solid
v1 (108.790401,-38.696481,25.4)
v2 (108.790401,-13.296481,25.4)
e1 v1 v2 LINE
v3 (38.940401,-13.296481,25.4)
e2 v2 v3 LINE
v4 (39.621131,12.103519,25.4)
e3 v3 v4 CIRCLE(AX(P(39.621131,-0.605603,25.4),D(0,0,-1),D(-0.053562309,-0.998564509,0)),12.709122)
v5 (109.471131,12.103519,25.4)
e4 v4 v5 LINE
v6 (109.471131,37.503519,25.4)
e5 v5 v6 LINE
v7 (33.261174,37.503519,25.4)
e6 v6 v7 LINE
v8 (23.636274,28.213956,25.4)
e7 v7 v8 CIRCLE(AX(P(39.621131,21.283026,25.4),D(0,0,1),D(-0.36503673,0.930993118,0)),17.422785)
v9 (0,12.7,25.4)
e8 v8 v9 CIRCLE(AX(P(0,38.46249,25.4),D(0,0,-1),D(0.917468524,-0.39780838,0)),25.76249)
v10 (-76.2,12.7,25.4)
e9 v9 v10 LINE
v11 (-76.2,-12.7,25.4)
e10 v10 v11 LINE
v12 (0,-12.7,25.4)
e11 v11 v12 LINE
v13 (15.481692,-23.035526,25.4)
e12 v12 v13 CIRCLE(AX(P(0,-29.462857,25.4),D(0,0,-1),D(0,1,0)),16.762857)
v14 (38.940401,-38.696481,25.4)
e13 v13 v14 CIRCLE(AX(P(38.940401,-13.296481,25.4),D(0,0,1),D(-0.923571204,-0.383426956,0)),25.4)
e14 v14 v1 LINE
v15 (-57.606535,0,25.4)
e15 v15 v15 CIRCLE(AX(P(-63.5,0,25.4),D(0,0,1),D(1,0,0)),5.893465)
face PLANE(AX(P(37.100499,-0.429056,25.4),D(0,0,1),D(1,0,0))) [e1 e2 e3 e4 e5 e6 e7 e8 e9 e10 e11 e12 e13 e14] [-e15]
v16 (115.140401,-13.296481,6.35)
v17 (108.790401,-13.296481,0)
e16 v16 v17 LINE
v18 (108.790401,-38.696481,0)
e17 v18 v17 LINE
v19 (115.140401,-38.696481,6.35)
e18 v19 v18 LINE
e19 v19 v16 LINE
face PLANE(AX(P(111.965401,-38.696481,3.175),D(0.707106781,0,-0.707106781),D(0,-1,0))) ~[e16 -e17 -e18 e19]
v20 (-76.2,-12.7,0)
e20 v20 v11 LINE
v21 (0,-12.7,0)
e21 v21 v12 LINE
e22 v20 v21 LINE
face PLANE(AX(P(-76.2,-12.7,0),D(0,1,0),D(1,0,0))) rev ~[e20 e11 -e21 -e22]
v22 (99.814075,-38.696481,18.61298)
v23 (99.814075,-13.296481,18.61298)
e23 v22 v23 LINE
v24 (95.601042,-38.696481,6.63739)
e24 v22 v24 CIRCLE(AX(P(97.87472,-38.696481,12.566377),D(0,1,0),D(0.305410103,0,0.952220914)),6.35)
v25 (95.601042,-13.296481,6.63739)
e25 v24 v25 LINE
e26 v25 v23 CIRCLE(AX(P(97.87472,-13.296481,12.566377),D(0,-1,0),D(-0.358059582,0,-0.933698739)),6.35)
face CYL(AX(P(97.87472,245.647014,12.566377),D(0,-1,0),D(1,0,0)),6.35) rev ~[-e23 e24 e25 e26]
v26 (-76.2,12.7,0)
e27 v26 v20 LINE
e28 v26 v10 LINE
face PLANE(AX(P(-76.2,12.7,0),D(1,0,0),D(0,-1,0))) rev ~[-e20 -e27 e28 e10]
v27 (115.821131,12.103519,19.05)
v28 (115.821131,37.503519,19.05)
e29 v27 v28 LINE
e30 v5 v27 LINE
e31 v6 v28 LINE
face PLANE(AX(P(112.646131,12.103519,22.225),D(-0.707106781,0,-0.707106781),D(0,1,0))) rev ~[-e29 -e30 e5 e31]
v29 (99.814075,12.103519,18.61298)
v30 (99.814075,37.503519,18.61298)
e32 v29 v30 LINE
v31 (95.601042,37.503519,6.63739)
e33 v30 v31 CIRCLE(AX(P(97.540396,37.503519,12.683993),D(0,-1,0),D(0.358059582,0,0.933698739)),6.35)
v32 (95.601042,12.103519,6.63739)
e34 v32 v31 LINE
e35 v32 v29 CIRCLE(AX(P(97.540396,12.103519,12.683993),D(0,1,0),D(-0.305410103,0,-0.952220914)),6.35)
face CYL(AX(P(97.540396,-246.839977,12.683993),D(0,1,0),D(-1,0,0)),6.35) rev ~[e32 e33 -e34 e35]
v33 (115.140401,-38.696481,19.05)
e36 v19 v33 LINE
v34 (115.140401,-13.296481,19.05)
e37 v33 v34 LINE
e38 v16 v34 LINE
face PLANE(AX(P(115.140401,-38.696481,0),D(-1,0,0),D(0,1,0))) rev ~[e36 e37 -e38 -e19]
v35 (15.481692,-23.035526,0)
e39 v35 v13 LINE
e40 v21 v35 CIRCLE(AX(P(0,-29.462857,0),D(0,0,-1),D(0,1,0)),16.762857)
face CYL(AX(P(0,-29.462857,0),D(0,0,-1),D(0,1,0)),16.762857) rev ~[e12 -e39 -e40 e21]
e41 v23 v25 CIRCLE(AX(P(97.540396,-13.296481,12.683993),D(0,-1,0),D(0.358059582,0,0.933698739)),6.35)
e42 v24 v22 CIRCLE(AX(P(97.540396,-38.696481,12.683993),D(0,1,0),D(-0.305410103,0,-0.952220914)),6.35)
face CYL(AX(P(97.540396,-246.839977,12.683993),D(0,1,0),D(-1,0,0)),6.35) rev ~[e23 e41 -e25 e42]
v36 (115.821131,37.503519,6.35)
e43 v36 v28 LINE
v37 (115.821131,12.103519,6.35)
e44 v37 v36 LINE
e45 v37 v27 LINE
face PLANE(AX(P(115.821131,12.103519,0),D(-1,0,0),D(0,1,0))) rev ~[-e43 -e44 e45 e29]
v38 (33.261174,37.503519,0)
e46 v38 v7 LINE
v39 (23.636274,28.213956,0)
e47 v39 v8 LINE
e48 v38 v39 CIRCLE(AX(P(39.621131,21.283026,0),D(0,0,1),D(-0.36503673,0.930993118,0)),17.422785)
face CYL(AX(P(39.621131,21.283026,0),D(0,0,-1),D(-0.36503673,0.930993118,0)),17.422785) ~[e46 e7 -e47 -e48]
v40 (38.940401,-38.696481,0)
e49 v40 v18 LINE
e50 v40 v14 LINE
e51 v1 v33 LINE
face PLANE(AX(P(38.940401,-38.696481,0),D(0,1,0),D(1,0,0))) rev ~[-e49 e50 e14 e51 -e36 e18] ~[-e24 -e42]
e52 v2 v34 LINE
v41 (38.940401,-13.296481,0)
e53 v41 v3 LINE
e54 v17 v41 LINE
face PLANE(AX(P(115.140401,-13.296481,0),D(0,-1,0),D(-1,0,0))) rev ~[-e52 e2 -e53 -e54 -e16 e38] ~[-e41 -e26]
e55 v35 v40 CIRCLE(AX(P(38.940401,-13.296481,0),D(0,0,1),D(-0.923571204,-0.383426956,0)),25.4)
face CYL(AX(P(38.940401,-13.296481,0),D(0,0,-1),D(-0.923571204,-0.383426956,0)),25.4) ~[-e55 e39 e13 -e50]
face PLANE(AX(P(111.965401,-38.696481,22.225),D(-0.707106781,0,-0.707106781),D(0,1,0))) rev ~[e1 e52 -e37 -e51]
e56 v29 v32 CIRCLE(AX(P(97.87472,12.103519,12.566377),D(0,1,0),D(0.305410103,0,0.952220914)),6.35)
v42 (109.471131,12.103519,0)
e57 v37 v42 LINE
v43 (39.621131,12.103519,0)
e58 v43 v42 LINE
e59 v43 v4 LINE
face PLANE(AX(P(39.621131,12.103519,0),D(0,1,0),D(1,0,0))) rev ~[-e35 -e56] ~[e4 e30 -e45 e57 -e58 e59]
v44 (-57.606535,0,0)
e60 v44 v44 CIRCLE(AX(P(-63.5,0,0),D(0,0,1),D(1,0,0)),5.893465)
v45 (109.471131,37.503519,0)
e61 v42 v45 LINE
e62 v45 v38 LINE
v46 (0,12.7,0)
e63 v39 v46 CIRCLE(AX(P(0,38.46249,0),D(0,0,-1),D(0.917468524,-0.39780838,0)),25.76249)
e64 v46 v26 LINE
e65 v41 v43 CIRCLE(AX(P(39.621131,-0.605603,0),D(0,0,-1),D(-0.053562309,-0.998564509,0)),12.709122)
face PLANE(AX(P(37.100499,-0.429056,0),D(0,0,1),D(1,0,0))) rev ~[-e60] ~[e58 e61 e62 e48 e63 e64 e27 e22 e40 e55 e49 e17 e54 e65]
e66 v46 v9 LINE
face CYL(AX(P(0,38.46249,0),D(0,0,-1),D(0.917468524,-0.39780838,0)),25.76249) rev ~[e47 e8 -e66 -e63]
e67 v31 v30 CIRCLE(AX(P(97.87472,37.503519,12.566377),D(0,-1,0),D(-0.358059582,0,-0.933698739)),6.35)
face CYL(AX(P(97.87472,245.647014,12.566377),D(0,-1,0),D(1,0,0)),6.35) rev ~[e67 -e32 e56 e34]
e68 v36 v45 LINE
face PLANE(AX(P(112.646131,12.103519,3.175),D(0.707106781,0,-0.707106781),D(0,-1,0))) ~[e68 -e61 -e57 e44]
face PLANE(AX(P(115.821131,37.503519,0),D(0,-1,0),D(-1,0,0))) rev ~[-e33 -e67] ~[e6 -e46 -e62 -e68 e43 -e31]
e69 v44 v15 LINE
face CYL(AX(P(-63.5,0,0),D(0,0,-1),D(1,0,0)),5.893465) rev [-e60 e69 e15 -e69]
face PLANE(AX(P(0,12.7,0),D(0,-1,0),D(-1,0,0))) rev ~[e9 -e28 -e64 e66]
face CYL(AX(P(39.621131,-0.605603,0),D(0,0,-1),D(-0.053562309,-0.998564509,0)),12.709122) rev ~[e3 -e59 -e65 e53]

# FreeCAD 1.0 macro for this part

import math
import FreeCAD as App
import Part
import Sketcher
Q = App.Units.Quantity


def edges_at(feature, points):
    """Names of the edges that pass closest to the given points."""
    edges = feature.Shape.Edges
    near = lambda p: min(range(len(edges)), key=lambda i: edges[i].distToShape(Part.Vertex(*p))[0])
    return sorted({f"Edge{near(p) + 1}" for p in points})

doc = App.newDocument("Part")
body = doc.addObject("PartDesign::Body", "Body")

# Sketch on XY plane
sketch1 = body.newObject("Sketcher::SketchObject", "Sketch")
sketch1.AttachmentSupport = (doc.getObject("XY_Plane"), [""])
sketch1.MapMode = "FlatFace"
sketch1.addGeometry([
    Part.ArcOfCircle(Part.Circle(App.Vector(0, 38, 0), App.Vector(0, 0, 1), 26), math.radians(-90), math.radians(-23)),  # 0
    Part.LineSegment(App.Vector(0, 13, 0), App.Vector(-76, 13, 0)),  # 1
    Part.LineSegment(App.Vector(-76, 13, 0), App.Vector(-76, -13, 0)),  # 2
    Part.LineSegment(App.Vector(-76, -13, 0), App.Vector(0, -13, 0)),  # 3
    Part.ArcOfCircle(Part.Circle(App.Vector(0, -29, 0), App.Vector(0, 0, 1), 17), math.radians(23), math.radians(90)),  # 4
    Part.ArcOfCircle(Part.Circle(App.Vector(39, -13, 0), App.Vector(0, 0, 1), 25), math.radians(-157), math.radians(-90)),  # 5
    Part.LineSegment(App.Vector(39, -39, 0), App.Vector(115, -39, 0)),  # 6
    Part.LineSegment(App.Vector(115, -39, 0), App.Vector(115, -13, 0)),  # 7
    Part.LineSegment(App.Vector(115, -13, 0), App.Vector(39, -13, 0)),  # 8
    Part.ArcOfCircle(Part.Circle(App.Vector(40, -1, 0), App.Vector(0, 0, 1), 13), math.radians(90), math.radians(267)),  # 9
    Part.LineSegment(App.Vector(40, 12, 0), App.Vector(116, 12, 0)),  # 10
    Part.LineSegment(App.Vector(116, 12, 0), App.Vector(116, 38, 0)),  # 11
    Part.LineSegment(App.Vector(116, 38, 0), App.Vector(33, 38, 0)),  # 12
    Part.ArcOfCircle(Part.Circle(App.Vector(40, 21, 0), App.Vector(0, 0, 1), 17), math.radians(111), math.radians(157)),  # 13
    Part.Circle(App.Vector(-64, 0, 0), App.Vector(0, 0, 1), 6),  # 14
], False)
sketch1.addConstraint([
    Sketcher.Constraint("Tangent", 0, 1, 1, 1),
    Sketcher.Constraint("Coincident", 1, 2, 2, 1),
    Sketcher.Constraint("Coincident", 2, 2, 3, 1),
    Sketcher.Constraint("Tangent", 3, 2, 4, 2),
    Sketcher.Constraint("Tangent", 4, 1, 5, 1),
    Sketcher.Constraint("Tangent", 5, 2, 6, 1),
    Sketcher.Constraint("Coincident", 6, 2, 7, 1),
    Sketcher.Constraint("Coincident", 7, 2, 8, 1),
    Sketcher.Constraint("Coincident", 8, 2, 9, 2),
    Sketcher.Constraint("Tangent", 9, 1, 10, 1),
    Sketcher.Constraint("Coincident", 10, 2, 11, 1),
    Sketcher.Constraint("Coincident", 11, 2, 12, 1),
    Sketcher.Constraint("Coincident", 12, 2, 13, 1),
    Sketcher.Constraint("Tangent", 13, 2, 0, 2),
    Sketcher.Constraint("Horizontal", 1),
    Sketcher.Constraint("Vertical", 2),
    Sketcher.Constraint("Horizontal", 3),
    Sketcher.Constraint("Horizontal", 6),
    Sketcher.Constraint("Vertical", 7),
    Sketcher.Constraint("Horizontal", 8),
    Sketcher.Constraint("Horizontal", 10),
    Sketcher.Constraint("Vertical", 11),
    Sketcher.Constraint("Horizontal", 12),
    Sketcher.Constraint("Coincident", 8, 2, 5, 3),
    Sketcher.Constraint("Symmetric", 0, 1, 3, 2, -1, 1),
    Sketcher.Constraint("PointOnObject", 0, 3, -2),
    Sketcher.Constraint("PointOnObject", 14, 3, -1),
    Sketcher.Constraint("Vertical", 9, 3, 13, 3),
    Sketcher.Constraint("Equal", 3, 6),
    Sketcher.Constraint("Equal", 8, 10),
    Sketcher.Constraint("Equal", 2, 7),
    Sketcher.Constraint("Equal", 7, 11),
    Sketcher.Constraint("Radius", 5, Q("1 in")),
    Sketcher.Constraint("DistanceX", 1, 2, 1, 1, Q("3 in")),
    Sketcher.Constraint("DistanceY", 5, 3, 9, 1, Q("1 in")),
    Sketcher.Constraint("DistanceX", 14, 3, -1, 1, Q("2.5 in")),
    Sketcher.Constraint("Diameter", 14, Q("11.786929 mm")),
    Sketcher.Constraint("Radius", 0, Q("25.76249 mm")),
    Sketcher.Constraint("Radius", 9, Q("12.709122 mm")),
    Sketcher.Constraint("Radius", 4, Q("16.762857 mm")),
    Sketcher.Constraint("Radius", 13, Q("17.422785 mm")),
    Sketcher.Constraint("DistanceX", -1, 1, 5, 3, Q("38.940401 mm")),
])
pad1 = body.newObject("PartDesign::Pad", "Pad")
pad1.Profile = sketch1
pad1.Length = Q("1 in")

# Sketch on XZ plane
sketch2 = body.newObject("Sketcher::SketchObject", "Sketch001")
sketch2.AttachmentSupport = (doc.getObject("XZ_Plane"), [""])
sketch2.MapMode = "FlatFace"
sketch2.AttachmentOffset = App.Placement(App.Vector(0, 0, 38.696481), App.Rotation())
sketch2.addGeometry(Part.Circle(App.Vector(98, 13, 0), App.Vector(0, 0, 1), 6), False)
sketch2.addConstraint([
    Sketcher.Constraint("Diameter", 0, Q("0.5 in")),
    Sketcher.Constraint("DistanceX", -1, 1, 0, 3, Q("97.540396 mm")),
    Sketcher.Constraint("DistanceY", -1, 1, 0, 3, Q("12.683993 mm")),
])
doc.recompute()
hole = body.newObject("PartDesign::Hole", "Hole")
hole.Profile = sketch2
hole.ThreadType = "None"
hole.Diameter = Q("0.5 in")
hole.DepthType = "ThroughAll"

# Sketch on XZ plane
sketch3 = body.newObject("Sketcher::SketchObject", "Sketch002")
sketch3.AttachmentSupport = (doc.getObject("XZ_Plane"), [""])
sketch3.MapMode = "FlatFace"
sketch3.AttachmentOffset = App.Placement(App.Vector(0, 0, -37.503519), App.Rotation())
sketch3.addGeometry(Part.Circle(App.Vector(98, 13, 0), App.Vector(0, 0, 1), 6), False)
sketch3.addConstraint([
    Sketcher.Constraint("Diameter", 0, Q("0.5 in")),
    Sketcher.Constraint("DistanceX", -1, 1, 0, 3, Q("97.87472 mm")),
    Sketcher.Constraint("DistanceY", -1, 1, 0, 3, Q("12.566377 mm")),
])
doc.recompute()
hole2 = body.newObject("PartDesign::Hole", "Hole001")
hole2.Profile = sketch3
hole2.ThreadType = "None"
hole2.Diameter = Q("0.5 in")
hole2.DepthType = "ThroughAll"
hole2.Reversed = True
doc.recompute()

chamfer = body.newObject("PartDesign::Chamfer", "Chamfer")
chamfer.Base = (hole2, edges_at(hole2, [
    (115.14, -25.996, 25.4),
    (115.14, -25.996, 0),
    (115.821, 24.804, 25.4),
    (115.821, 24.804, 0),
]))
chamfer.Size = Q("0.25 in")

doc.recompute()
